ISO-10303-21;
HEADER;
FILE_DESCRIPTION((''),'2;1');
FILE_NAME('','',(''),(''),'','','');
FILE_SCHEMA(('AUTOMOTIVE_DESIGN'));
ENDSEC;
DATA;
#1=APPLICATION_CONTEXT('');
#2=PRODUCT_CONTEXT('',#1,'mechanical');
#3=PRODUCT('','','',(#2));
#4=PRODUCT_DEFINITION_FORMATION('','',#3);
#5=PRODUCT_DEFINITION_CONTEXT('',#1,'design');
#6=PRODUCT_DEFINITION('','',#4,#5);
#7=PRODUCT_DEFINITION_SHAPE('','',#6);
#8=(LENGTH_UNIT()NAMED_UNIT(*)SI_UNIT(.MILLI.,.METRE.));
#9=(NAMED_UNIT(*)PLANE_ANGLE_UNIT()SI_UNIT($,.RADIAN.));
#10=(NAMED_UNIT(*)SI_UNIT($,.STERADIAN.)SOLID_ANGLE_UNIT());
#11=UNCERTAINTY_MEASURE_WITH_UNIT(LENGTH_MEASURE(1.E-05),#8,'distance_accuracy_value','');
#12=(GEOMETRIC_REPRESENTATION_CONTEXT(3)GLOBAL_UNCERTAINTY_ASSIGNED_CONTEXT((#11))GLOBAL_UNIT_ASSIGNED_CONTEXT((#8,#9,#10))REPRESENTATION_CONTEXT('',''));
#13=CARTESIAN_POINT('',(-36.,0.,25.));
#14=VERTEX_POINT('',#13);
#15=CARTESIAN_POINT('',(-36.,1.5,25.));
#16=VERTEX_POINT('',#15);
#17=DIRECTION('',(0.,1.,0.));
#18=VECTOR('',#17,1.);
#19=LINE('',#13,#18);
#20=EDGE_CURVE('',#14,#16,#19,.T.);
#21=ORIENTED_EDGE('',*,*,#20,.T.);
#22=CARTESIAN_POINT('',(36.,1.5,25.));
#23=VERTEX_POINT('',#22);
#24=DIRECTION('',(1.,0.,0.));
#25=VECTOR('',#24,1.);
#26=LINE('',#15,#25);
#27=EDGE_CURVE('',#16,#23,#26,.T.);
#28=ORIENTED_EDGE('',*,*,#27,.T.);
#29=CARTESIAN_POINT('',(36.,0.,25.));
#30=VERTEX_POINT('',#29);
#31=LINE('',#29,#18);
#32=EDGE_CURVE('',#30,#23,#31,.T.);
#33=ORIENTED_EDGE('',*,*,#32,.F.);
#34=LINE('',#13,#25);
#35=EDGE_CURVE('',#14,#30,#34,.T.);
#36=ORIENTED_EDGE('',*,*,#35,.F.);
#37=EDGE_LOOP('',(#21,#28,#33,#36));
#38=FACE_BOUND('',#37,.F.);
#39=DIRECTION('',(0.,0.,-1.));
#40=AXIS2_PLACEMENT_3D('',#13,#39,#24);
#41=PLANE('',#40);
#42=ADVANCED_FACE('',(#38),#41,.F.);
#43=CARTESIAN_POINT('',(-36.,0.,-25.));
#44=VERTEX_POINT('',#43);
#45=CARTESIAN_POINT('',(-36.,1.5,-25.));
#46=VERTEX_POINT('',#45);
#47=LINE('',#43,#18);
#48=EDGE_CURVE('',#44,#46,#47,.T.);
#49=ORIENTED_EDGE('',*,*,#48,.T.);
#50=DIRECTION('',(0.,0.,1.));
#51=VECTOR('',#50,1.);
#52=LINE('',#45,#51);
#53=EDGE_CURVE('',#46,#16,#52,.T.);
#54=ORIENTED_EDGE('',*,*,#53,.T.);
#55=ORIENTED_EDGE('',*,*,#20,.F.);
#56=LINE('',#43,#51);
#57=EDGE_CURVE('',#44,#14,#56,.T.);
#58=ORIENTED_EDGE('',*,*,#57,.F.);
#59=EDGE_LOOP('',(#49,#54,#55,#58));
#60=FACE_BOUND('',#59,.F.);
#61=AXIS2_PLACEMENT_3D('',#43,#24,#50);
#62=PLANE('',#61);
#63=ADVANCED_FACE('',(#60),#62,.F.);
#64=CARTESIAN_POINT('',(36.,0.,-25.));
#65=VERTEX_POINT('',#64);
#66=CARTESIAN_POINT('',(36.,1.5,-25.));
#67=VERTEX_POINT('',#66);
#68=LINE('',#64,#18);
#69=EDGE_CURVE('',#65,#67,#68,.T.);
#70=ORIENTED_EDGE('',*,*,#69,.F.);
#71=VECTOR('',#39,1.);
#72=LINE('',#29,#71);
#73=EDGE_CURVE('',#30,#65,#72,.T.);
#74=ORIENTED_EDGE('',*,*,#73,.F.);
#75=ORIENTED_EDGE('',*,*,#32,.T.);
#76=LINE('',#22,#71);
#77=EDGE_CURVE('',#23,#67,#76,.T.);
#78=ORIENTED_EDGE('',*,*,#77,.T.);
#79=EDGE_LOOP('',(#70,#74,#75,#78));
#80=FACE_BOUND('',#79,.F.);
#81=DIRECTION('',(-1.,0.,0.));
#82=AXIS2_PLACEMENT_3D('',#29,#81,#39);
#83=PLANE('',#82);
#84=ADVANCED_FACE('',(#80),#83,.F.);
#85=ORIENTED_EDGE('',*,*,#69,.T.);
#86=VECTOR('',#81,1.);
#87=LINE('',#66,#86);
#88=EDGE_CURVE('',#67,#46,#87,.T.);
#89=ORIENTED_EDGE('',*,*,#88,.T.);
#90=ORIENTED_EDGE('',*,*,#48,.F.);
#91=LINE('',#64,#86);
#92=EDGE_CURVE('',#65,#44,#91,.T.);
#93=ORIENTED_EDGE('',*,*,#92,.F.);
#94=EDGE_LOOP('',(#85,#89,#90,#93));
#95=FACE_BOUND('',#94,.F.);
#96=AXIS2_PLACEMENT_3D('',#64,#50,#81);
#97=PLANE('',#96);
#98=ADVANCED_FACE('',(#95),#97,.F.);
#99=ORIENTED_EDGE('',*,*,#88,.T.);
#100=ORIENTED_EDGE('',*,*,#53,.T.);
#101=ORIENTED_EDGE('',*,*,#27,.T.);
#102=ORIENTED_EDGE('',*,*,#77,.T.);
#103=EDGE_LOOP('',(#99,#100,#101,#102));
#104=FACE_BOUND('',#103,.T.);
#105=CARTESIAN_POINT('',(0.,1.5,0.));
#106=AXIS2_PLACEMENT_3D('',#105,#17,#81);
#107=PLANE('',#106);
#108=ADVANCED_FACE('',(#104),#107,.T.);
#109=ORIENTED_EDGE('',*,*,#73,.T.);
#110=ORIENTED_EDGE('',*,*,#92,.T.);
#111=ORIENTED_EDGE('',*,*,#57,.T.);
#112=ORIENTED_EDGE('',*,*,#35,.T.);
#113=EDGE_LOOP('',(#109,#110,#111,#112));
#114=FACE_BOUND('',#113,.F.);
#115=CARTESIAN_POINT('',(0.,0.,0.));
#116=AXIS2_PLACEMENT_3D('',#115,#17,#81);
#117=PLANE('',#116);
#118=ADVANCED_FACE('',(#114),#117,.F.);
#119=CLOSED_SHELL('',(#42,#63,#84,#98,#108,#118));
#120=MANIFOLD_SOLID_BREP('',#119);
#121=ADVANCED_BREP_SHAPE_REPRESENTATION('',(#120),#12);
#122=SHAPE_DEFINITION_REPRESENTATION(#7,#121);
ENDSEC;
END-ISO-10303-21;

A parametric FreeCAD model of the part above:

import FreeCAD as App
import Part
import Sketcher
Q = App.Units.Quantity

doc = App.newDocument("Part")
body = doc.addObject("PartDesign::Body", "Body")

# Sketch on XZ plane
sketch1 = body.newObject("Sketcher::SketchObject", "Sketch")
sketch1.AttachmentSupport = (doc.getObject("XZ_Plane"), [""])
sketch1.MapMode = "FlatFace"
sketch1.addGeometry(Part.LineSegment(App.Vector(-36, -25, 0), App.Vector(-36, 25, 0)), False)
sketch1.addGeometry(Part.LineSegment(App.Vector(-36, 25, 0), App.Vector(36, 25, 0)), False)
sketch1.addGeometry(Part.LineSegment(App.Vector(36, 25, 0), App.Vector(36, -25, 0)), False)
sketch1.addGeometry(Part.LineSegment(App.Vector(36, -25, 0), App.Vector(-36, -25, 0)), False)
sketch1.addConstraint(Sketcher.Constraint("Coincident", 0, 2, 1, 1))
sketch1.addConstraint(Sketcher.Constraint("Coincident", 1, 2, 2, 1))
sketch1.addConstraint(Sketcher.Constraint("Coincident", 2, 2, 3, 1))
sketch1.addConstraint(Sketcher.Constraint("Coincident", 3, 2, 0, 1))
sketch1.addConstraint(Sketcher.Constraint("Vertical", 0))
sketch1.addConstraint(Sketcher.Constraint("Horizontal", 1))
sketch1.addConstraint(Sketcher.Constraint("Vertical", 2))
sketch1.addConstraint(Sketcher.Constraint("Horizontal", 3))
sketch1.addConstraint(Sketcher.Constraint("Symmetric", 0, 2, 2, 2, -1, 1))
sketch1.addConstraint(Sketcher.Constraint("DistanceX", 1, 1, 1, 2, Q("72 mm")))
sketch1.addConstraint(Sketcher.Constraint("DistanceY", 0, 1, 0, 2, Q("50 mm")))
pad1 = body.newObject("PartDesign::Pad", "Pad")
pad1.Profile = sketch1
pad1.Length = 1.5
pad1.Reversed = True

doc.recompute()
